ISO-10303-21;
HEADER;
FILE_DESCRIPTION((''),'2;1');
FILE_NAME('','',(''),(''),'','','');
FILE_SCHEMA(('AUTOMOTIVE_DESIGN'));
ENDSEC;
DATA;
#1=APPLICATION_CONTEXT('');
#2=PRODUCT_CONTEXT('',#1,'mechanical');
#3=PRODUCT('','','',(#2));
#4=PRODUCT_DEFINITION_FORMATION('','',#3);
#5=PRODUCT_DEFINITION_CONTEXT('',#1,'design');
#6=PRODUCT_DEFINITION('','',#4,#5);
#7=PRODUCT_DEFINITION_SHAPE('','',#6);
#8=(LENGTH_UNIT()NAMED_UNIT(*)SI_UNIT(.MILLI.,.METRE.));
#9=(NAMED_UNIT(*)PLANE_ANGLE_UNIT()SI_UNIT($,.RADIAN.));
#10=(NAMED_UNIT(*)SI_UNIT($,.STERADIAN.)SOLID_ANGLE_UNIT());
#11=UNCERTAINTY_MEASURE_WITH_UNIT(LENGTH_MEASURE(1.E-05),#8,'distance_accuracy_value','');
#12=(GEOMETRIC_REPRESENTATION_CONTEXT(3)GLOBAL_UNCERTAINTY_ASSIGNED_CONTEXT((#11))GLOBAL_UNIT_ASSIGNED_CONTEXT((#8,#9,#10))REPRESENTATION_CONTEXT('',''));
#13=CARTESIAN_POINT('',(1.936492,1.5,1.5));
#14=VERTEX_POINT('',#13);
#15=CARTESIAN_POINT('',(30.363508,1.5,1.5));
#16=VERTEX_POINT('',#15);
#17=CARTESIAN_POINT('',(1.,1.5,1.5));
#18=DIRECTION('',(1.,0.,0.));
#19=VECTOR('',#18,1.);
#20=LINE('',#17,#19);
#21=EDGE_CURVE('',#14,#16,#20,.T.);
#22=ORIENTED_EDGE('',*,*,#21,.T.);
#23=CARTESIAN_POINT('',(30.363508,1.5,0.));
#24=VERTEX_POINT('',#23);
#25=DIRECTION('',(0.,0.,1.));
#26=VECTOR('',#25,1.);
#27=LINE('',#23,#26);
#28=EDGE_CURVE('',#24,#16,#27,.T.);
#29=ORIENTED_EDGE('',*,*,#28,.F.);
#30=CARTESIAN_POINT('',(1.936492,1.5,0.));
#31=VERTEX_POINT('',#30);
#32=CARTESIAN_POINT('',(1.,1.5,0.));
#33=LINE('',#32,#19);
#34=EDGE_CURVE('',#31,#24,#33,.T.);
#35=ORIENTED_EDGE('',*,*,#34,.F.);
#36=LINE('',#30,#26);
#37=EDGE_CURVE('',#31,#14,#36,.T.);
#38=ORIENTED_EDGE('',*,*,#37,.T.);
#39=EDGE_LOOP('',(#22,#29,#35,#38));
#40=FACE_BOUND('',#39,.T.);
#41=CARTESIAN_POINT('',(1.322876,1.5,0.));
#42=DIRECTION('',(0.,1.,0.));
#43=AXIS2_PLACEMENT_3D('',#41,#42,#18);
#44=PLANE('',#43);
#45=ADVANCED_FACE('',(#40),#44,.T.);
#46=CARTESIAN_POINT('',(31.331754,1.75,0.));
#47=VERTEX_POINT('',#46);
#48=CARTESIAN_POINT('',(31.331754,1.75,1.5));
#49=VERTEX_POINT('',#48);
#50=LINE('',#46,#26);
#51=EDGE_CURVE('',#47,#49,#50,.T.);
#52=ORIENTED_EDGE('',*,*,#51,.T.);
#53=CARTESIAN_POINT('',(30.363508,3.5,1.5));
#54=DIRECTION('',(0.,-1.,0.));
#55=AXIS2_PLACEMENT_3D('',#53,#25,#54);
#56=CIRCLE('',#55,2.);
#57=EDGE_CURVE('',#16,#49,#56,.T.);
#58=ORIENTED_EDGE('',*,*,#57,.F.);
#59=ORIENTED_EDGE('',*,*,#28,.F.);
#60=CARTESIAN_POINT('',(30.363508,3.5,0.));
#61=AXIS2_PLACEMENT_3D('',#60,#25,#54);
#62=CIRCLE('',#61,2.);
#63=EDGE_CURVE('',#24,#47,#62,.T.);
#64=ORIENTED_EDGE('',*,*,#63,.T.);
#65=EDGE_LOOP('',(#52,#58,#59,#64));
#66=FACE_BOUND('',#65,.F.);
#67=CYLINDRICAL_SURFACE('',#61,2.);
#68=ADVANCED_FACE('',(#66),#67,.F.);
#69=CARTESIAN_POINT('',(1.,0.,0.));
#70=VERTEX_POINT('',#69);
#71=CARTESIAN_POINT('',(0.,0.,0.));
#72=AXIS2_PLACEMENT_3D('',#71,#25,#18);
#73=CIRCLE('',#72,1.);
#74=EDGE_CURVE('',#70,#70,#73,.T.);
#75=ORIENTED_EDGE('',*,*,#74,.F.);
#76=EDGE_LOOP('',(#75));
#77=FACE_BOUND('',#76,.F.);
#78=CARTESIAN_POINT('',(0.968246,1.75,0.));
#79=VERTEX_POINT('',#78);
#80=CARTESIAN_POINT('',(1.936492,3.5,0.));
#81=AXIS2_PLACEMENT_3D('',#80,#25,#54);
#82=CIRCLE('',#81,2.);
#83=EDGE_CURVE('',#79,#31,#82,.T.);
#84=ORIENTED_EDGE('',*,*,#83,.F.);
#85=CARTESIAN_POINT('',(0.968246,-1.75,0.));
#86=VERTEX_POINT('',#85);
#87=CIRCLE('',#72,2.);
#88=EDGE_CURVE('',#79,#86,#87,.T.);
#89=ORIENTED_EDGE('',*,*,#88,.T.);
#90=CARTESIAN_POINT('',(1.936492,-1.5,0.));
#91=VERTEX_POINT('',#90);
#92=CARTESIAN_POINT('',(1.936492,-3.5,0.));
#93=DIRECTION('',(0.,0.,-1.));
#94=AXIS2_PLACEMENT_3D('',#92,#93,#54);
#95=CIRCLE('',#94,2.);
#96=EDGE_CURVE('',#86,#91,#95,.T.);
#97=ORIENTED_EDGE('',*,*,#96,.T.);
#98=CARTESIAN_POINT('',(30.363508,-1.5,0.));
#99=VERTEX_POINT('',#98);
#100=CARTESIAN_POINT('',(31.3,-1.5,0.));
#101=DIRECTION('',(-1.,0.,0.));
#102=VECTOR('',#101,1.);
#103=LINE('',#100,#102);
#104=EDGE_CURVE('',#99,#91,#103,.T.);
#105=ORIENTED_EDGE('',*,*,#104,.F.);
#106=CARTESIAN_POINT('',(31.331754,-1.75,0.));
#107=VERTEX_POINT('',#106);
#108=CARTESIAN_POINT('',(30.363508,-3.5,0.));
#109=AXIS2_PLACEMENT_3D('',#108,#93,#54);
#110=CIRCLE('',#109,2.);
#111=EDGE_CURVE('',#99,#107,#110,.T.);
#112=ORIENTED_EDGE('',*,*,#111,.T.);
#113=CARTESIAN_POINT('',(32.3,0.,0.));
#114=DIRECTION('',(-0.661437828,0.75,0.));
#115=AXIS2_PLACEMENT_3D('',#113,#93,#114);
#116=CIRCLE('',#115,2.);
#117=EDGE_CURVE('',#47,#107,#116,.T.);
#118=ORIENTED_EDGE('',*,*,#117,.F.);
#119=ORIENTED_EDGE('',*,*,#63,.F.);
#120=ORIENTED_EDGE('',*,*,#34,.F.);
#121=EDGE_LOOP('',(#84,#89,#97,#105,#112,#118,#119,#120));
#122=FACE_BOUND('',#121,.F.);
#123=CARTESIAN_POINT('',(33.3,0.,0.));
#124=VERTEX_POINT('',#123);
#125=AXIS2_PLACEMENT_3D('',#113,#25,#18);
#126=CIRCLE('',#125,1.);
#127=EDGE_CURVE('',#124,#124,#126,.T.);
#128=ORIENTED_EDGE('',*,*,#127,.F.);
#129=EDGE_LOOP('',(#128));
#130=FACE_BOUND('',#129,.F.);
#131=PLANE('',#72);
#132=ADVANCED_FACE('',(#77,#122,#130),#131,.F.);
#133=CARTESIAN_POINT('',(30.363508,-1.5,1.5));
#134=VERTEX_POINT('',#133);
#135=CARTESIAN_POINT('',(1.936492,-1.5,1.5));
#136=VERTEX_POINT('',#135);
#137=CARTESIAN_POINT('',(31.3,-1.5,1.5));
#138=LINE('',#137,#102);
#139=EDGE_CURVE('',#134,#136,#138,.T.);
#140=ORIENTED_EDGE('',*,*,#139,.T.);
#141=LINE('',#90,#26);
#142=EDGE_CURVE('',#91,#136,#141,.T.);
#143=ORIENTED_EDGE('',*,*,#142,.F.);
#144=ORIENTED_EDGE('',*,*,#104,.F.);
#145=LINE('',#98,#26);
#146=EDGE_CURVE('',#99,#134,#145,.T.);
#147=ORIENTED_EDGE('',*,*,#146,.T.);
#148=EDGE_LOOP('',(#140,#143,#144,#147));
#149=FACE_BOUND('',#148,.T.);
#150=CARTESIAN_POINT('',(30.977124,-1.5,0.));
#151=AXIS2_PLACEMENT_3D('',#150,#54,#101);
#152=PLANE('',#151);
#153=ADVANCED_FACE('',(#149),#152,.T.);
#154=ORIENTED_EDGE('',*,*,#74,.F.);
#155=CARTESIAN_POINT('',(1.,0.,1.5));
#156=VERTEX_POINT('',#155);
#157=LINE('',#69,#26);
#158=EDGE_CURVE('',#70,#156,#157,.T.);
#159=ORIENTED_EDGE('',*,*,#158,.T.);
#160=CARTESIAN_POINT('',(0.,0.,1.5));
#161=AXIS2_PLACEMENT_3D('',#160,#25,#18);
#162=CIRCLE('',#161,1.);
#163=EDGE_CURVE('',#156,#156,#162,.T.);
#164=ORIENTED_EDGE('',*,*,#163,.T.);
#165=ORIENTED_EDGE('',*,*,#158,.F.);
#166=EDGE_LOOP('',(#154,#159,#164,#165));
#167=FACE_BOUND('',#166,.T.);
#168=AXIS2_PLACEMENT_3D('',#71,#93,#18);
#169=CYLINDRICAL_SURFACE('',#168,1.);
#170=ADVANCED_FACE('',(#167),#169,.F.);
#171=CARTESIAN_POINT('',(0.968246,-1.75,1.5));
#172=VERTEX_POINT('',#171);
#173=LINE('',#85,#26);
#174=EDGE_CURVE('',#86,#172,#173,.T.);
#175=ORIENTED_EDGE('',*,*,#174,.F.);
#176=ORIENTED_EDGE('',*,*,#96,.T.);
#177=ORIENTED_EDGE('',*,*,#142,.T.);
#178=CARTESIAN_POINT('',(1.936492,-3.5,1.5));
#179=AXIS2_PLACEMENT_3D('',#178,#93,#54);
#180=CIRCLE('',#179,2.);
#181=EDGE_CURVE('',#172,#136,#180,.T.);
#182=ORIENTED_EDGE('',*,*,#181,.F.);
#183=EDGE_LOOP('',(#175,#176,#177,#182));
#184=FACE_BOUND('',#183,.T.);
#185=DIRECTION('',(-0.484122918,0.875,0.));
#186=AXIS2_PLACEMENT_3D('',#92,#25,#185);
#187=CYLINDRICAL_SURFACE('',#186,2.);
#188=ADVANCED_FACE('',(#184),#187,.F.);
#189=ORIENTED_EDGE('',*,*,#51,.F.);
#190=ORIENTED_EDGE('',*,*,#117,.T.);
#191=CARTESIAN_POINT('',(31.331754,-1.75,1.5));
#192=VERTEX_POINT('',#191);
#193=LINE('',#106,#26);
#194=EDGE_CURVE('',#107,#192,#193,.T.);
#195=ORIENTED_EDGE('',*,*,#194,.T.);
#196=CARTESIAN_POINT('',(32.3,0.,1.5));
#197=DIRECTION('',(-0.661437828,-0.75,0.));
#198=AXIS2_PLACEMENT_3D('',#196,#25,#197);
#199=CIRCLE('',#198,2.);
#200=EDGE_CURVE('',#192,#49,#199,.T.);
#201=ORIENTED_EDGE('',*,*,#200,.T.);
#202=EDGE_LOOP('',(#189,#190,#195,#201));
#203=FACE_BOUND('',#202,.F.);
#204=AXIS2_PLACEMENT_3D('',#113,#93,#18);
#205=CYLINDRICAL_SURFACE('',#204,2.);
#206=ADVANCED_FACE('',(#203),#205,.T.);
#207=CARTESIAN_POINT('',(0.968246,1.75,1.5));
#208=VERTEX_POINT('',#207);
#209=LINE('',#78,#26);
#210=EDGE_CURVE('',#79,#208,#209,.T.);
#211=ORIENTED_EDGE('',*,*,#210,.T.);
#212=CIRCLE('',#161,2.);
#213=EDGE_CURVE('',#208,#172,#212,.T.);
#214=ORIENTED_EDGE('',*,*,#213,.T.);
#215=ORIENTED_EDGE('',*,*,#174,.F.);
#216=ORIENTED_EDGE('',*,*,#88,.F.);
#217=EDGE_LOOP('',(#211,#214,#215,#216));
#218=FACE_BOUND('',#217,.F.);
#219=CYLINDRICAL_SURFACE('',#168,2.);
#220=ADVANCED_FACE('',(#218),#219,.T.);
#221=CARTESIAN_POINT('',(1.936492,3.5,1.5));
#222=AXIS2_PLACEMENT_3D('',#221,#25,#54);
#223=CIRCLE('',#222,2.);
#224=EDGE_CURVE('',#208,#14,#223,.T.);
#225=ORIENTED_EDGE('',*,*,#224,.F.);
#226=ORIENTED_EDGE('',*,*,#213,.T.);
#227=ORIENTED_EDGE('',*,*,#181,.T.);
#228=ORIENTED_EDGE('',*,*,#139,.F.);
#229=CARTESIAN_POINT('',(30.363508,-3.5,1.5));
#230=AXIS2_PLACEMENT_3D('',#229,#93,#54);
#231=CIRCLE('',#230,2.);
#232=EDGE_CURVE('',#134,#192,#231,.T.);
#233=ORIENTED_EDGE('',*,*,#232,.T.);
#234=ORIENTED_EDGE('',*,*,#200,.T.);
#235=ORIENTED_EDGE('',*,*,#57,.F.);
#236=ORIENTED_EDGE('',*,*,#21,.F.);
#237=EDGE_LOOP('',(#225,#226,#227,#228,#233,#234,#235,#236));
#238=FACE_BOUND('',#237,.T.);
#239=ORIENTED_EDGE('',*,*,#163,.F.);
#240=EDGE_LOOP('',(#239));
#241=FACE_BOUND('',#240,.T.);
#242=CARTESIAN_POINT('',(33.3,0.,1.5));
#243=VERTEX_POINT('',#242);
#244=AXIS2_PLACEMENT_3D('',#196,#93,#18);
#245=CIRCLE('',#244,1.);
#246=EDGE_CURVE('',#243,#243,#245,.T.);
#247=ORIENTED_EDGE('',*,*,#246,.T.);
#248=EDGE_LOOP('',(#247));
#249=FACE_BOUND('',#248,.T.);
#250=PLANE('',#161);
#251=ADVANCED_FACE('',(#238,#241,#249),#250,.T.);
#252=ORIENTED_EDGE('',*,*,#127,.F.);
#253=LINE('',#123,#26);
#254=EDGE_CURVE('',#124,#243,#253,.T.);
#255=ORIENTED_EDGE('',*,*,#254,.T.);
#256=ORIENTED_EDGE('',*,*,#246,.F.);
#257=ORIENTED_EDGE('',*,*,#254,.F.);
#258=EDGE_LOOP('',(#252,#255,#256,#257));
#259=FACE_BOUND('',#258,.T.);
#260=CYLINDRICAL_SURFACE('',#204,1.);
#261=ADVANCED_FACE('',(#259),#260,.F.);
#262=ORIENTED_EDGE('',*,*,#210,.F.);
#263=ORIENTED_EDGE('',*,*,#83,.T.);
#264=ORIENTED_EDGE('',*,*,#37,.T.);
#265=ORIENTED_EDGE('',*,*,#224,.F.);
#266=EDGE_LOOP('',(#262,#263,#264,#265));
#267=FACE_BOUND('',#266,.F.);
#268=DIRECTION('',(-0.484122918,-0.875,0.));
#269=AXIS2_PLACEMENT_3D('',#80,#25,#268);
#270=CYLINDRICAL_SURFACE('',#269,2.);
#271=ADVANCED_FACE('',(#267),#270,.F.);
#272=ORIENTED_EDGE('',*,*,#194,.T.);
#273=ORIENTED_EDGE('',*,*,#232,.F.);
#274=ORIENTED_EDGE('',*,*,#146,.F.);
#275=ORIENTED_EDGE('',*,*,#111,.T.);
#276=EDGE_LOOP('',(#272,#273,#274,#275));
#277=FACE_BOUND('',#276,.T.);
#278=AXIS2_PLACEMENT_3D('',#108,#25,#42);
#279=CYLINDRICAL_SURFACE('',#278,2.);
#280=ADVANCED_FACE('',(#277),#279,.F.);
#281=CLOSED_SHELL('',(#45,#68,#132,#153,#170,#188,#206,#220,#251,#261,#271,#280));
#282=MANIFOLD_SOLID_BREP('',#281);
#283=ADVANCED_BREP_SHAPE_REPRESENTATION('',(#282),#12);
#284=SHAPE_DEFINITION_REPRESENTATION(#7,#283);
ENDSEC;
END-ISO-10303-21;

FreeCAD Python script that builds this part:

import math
import FreeCAD as App
import Part
import Sketcher

V = App.Vector


def edges_at(feature, points):
    """Names of the edges that pass closest to the given points."""
    edges = feature.Shape.Edges
    near = lambda p: min(range(len(edges)), key=lambda i: edges[i].distToShape(Part.Vertex(*p))[0])
    return sorted({f"Edge{near(p) + 1}" for p in points})

doc = App.newDocument("Part")
body = doc.addObject("PartDesign::Body", "Body")

# Sketch on XY plane
sketch1 = body.newObject("Sketcher::SketchObject", "Sketch")
sketch1.AttachmentSupport = (doc.getObject("XY_Plane"), [""])
sketch1.MapMode = "FlatFace"
sketch1.addGeometry([
    Part.ArcOfCircle(Part.Circle(V(0, 0, 0), V(0, 0, 1), 2), math.radians(49), math.radians(311)),  # 0
    Part.LineSegment(V(1.3, -1.5, 0), V(31, -1.5, 0)),  # 1
    Part.ArcOfCircle(Part.Circle(V(32.3, 0, 0), V(0, 0, 1), 2), math.radians(-131), math.radians(131)),  # 2
    Part.LineSegment(V(31, 1.5, 0), V(1.3, 1.5, 0)),  # 3
    Part.Circle(V(0, 0, 0), V(0, 0, 1), 1),  # 4
    Part.Circle(V(32.3, 0, 0), V(0, 0, 1), 1),  # 5
], False)
sketch1.addConstraint([
    Sketcher.Constraint("Coincident", 0, 2, 1, 1),
    Sketcher.Constraint("Coincident", 1, 2, 2, 1),
    Sketcher.Constraint("Coincident", 2, 2, 3, 1),
    Sketcher.Constraint("Coincident", 3, 2, 0, 1),
    Sketcher.Constraint("Horizontal", 1),
    Sketcher.Constraint("Horizontal", 3),
    Sketcher.Constraint("Coincident", 0, 3, -1, 1),
    Sketcher.Constraint("Coincident", 4, 3, -1, 1),
    Sketcher.Constraint("Coincident", 5, 3, 2, 3),
    Sketcher.Constraint("Equal", 0, 2),
    Sketcher.Constraint("Equal", 4, 5),
    Sketcher.Constraint("Symmetric", 1, 2, 2, 2, -1),
    Sketcher.Constraint("Diameter", 4, 2.0),
    Sketcher.Constraint("Radius", 0, 2.0),
    Sketcher.Constraint("DistanceY", 1, 2, 2, 2, 3.0),
    Sketcher.Constraint("DistanceX", -1, 1, 2, 3, 32.3),
])
pad1 = body.newObject("PartDesign::Pad", "Pad")
pad1.Profile = sketch1
pad1.Length = 1.5
doc.recompute()

fillet = body.newObject("PartDesign::Fillet", "Fillet")
fillet.Base = (pad1, edges_at(pad1, [
    (1.323, 1.5, 0.75),
    (30.977, 1.5, 0.75),
    (30.977, -1.5, 0.75),
    (1.323, -1.5, 0.75),
]))
fillet.Radius = 2

doc.recompute()
